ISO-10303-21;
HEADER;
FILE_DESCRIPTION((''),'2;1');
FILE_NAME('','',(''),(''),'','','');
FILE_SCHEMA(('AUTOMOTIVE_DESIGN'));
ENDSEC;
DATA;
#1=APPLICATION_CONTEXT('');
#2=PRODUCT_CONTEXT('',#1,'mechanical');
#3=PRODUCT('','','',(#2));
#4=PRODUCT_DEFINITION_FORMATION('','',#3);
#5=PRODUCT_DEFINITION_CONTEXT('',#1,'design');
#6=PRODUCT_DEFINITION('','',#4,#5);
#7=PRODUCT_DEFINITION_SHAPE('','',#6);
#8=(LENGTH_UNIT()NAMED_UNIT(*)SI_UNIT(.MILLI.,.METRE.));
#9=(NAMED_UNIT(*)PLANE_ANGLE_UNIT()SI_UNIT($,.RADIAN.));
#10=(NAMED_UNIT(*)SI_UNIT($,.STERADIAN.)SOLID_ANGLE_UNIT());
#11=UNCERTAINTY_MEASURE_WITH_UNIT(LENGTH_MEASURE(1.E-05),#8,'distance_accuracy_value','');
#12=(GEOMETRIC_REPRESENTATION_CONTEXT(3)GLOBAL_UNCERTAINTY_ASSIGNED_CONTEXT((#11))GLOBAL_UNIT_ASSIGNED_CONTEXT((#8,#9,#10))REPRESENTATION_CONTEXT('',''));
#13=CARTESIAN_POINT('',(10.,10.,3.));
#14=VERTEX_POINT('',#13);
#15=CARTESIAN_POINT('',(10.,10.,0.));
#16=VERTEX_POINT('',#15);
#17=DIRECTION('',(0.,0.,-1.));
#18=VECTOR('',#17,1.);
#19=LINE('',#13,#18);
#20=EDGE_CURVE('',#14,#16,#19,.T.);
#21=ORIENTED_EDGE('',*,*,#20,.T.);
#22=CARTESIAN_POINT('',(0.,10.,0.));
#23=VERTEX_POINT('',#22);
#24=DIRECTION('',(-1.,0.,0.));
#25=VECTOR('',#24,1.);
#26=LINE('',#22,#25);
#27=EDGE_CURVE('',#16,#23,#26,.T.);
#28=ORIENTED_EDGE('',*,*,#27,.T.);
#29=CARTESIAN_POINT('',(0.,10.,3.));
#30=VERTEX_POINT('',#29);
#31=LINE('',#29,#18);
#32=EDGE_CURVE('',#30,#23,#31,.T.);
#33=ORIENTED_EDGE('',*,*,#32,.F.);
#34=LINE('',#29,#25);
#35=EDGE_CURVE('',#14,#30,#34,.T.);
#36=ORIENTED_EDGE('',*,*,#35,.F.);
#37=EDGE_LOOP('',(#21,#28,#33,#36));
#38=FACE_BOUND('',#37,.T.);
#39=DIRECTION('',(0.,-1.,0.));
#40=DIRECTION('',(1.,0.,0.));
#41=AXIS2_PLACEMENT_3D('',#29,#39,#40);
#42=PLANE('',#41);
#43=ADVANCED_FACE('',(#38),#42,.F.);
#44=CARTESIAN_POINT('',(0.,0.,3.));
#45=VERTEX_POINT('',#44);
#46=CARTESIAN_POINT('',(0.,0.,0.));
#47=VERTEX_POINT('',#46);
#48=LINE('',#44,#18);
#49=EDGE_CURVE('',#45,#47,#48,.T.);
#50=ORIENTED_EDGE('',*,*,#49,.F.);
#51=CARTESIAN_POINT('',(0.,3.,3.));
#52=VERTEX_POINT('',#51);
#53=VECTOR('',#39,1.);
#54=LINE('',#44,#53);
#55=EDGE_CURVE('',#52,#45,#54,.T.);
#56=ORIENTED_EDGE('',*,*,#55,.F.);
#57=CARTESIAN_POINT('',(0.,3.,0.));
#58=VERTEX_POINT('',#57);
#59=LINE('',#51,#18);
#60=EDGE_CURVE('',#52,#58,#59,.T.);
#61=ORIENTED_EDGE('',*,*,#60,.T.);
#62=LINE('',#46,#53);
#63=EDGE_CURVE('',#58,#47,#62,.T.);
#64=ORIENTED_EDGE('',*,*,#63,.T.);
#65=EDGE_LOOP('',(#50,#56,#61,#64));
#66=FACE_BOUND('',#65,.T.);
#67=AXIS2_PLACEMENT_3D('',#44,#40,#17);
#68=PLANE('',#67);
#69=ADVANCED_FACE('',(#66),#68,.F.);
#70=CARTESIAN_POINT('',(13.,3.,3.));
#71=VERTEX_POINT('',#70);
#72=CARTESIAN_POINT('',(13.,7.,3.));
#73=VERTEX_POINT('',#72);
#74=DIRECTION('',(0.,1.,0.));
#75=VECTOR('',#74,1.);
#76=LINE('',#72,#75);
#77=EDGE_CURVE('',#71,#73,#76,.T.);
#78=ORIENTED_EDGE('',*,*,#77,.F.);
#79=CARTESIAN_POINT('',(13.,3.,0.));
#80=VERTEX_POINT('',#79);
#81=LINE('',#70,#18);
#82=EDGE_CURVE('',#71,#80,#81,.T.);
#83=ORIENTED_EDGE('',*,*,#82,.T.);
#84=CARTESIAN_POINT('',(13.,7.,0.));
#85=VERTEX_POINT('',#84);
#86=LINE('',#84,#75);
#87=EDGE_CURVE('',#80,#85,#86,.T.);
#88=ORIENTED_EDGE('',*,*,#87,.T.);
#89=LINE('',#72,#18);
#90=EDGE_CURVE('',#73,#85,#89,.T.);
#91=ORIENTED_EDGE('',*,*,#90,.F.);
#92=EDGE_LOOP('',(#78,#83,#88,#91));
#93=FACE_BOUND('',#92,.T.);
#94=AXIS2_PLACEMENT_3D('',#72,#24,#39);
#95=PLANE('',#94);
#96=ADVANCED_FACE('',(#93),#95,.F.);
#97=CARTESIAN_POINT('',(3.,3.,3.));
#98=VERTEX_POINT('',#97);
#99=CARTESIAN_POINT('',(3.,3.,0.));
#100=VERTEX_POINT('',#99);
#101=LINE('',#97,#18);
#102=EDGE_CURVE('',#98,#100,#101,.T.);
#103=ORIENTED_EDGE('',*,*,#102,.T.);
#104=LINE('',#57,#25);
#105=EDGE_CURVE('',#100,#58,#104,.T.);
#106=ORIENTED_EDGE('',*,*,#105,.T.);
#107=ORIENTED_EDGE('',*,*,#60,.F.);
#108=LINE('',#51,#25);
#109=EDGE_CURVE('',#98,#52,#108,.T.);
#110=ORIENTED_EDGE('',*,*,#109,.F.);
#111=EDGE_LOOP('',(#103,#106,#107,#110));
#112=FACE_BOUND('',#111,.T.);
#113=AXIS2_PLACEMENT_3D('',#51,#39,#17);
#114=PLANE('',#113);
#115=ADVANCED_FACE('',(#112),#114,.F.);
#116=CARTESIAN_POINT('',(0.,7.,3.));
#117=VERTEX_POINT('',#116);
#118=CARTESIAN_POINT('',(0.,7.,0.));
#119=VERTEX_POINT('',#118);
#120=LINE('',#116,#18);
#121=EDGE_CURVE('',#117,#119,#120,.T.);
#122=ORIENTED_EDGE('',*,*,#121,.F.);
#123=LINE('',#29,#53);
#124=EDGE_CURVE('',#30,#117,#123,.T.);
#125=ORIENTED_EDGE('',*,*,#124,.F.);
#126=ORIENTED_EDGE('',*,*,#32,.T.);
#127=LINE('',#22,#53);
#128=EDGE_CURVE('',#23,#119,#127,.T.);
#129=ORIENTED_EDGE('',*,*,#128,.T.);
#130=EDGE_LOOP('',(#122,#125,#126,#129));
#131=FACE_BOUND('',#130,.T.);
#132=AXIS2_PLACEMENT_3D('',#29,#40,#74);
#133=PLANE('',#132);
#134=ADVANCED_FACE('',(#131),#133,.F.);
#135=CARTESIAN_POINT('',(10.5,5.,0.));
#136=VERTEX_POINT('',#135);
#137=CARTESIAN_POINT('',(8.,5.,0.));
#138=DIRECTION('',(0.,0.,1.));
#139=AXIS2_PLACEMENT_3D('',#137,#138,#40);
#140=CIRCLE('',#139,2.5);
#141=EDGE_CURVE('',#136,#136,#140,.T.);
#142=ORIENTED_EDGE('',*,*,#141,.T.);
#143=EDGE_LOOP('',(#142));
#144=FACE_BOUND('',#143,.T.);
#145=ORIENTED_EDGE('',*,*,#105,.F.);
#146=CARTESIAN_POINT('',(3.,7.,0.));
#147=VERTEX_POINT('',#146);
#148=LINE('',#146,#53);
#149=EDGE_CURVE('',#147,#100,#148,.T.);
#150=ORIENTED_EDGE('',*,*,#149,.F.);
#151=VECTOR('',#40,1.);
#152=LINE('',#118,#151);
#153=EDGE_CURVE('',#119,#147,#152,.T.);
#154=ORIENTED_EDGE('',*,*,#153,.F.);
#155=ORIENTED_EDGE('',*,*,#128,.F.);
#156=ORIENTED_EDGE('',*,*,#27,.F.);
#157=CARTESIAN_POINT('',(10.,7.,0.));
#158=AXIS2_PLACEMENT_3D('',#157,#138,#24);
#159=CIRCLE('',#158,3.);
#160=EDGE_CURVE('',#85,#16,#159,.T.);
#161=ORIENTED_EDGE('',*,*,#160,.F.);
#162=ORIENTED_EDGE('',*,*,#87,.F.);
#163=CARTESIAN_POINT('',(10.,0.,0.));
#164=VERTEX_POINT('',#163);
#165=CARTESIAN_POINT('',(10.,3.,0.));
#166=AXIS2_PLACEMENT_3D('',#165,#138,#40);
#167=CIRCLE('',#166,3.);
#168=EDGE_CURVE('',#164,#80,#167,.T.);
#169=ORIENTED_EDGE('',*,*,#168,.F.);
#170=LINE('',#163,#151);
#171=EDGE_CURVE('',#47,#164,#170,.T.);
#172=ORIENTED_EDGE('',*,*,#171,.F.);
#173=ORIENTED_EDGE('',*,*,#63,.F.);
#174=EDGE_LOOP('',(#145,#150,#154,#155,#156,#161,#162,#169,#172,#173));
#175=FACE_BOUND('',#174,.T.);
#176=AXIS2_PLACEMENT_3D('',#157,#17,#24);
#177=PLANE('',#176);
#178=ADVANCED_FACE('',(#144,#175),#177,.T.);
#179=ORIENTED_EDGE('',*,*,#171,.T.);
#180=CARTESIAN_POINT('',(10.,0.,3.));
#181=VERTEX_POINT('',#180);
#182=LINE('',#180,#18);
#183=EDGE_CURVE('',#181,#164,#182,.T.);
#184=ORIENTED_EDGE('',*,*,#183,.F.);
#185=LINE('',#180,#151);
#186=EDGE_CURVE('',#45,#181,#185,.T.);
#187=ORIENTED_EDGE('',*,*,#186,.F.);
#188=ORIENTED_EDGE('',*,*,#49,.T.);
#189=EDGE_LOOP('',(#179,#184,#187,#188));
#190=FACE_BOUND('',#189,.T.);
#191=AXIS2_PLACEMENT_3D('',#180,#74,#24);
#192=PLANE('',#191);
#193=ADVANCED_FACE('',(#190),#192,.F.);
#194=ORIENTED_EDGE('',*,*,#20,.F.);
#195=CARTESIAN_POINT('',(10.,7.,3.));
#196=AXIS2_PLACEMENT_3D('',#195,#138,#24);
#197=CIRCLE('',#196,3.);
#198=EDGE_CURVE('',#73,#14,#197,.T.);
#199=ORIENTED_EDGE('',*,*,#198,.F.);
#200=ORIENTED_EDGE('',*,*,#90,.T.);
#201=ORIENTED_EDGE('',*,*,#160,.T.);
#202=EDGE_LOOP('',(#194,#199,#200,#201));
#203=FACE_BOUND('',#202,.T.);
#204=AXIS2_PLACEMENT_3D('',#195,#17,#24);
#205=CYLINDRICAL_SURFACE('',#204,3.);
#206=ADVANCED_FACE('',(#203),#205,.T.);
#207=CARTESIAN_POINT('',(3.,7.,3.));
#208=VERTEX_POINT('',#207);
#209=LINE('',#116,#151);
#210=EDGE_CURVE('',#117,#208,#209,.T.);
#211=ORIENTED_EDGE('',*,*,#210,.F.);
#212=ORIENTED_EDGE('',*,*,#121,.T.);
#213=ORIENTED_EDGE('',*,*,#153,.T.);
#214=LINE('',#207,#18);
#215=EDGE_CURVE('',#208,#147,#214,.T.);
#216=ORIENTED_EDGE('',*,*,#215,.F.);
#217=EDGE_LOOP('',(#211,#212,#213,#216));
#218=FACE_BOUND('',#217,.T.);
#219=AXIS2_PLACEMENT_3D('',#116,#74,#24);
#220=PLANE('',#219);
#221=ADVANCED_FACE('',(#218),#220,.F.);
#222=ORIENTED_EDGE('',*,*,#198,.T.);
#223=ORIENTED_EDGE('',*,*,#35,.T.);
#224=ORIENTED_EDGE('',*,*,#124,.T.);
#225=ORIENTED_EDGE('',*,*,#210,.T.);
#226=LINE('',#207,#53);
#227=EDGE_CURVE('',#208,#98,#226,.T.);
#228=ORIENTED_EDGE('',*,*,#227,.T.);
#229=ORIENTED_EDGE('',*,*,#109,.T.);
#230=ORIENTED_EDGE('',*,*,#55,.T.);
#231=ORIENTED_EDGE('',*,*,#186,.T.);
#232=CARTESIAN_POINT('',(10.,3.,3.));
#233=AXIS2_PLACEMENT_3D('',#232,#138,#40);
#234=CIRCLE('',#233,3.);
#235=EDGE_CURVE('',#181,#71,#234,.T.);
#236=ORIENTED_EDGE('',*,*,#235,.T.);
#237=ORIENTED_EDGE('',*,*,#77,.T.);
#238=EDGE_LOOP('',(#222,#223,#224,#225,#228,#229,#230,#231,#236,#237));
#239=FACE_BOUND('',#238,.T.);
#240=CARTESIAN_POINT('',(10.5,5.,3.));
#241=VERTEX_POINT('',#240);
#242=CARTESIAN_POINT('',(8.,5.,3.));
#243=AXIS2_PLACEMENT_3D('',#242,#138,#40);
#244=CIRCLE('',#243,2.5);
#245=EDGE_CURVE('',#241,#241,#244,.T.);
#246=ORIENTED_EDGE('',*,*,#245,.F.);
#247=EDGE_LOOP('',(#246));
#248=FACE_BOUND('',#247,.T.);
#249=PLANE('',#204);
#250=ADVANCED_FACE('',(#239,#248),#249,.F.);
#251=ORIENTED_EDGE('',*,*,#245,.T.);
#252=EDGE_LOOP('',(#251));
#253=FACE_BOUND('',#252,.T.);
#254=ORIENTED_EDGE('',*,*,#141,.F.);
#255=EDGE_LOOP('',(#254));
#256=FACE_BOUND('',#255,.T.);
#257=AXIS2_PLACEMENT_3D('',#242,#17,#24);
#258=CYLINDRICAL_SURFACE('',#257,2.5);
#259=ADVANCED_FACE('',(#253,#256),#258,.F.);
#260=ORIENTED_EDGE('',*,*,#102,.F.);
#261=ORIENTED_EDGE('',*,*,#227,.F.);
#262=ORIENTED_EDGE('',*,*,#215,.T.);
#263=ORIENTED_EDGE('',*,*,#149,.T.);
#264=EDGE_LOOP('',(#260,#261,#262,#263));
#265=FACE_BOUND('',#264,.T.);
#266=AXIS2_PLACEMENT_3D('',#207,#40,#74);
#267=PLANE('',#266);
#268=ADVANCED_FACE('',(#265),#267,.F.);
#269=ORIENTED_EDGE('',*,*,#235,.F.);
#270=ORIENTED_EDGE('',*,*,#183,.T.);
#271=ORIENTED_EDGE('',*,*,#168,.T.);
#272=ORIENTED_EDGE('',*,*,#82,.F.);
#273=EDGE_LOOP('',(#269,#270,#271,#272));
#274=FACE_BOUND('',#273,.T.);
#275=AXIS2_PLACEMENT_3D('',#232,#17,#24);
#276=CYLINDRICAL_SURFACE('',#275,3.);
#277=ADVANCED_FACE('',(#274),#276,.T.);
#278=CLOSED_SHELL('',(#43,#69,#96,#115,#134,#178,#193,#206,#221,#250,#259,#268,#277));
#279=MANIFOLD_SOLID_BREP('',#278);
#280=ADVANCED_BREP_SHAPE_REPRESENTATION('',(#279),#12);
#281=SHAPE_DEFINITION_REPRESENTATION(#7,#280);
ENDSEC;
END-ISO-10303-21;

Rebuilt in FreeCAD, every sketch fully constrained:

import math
import FreeCAD as App
import Part
import Sketcher
from FreeCAD import Vector
Q = App.Units.Quantity

doc = App.newDocument("Part")
body = doc.addObject("PartDesign::Body", "Body")

# Sketch on XY plane
sketch1 = body.newObject("Sketcher::SketchObject", "Sketch")
sketch1.AttachmentSupport = (doc.getObject("XY_Plane"), [""])
sketch1.MapMode = "FlatFace"
sketch1.addGeometry([
    Part.LineSegment(Vector(10, 10, 0), Vector(0, 10, 0)),  # 0
    Part.LineSegment(Vector(0, 10, 0), Vector(0, 7, 0)),  # 1
    Part.LineSegment(Vector(0, 7, 0), Vector(3, 7, 0)),  # 2
    Part.LineSegment(Vector(3, 7, 0), Vector(3, 3, 0)),  # 3
    Part.LineSegment(Vector(3, 3, 0), Vector(0, 3, 0)),  # 4
    Part.LineSegment(Vector(0, 3, 0), Vector(0, 0, 0)),  # 5
    Part.LineSegment(Vector(0, 0, 0), Vector(10, 0, 0)),  # 6
    Part.ArcOfCircle(Part.Circle(Vector(10, 3, 0), Vector(0, 0, 1), 3), math.radians(-90), math.radians(0)),  # 7
    Part.LineSegment(Vector(13, 3, 0), Vector(13, 7, 0)),  # 8
    Part.ArcOfCircle(Part.Circle(Vector(10, 7, 0), Vector(0, 0, 1), 3), math.radians(0), math.radians(90)),  # 9
    Part.Circle(Vector(8, 5, 0), Vector(0, 0, 1), 2.5),  # 10
], False)
sketch1.addConstraint([
    Sketcher.Constraint("Coincident", 0, 2, 1, 1),
    Sketcher.Constraint("Coincident", 1, 2, 2, 1),
    Sketcher.Constraint("Coincident", 2, 2, 3, 1),
    Sketcher.Constraint("Coincident", 3, 2, 4, 1),
    Sketcher.Constraint("Coincident", 4, 2, 5, 1),
    Sketcher.Constraint("Coincident", 5, 2, 6, 1),
    Sketcher.Constraint("Tangent", 6, 2, 7, 1),
    Sketcher.Constraint("Tangent", 7, 2, 8, 1),
    Sketcher.Constraint("Tangent", 8, 2, 9, 1),
    Sketcher.Constraint("Tangent", 9, 2, 0, 1),
    Sketcher.Constraint("Horizontal", 0),
    Sketcher.Constraint("Vertical", 1),
    Sketcher.Constraint("Horizontal", 2),
    Sketcher.Constraint("Vertical", 3),
    Sketcher.Constraint("Horizontal", 4),
    Sketcher.Constraint("Vertical", 5),
    Sketcher.Constraint("Horizontal", 6),
    Sketcher.Constraint("Vertical", 8),
    Sketcher.Constraint("Coincident", 5, 2, -1, 1),
    Sketcher.Constraint("Equal", 7, 9),
    Sketcher.Constraint("PointOnObject", 0, 2, -2),
    Sketcher.Constraint("Horizontal", 9, 3, 1, 2),
    Sketcher.Constraint("Horizontal", 7, 3, 3, 2),
    Sketcher.Constraint("Equal", 4, 1),
    Sketcher.Constraint("Diameter", 10, Q("5 mm")),
    Sketcher.Constraint("Radius", 7, Q("3 mm")),
    Sketcher.Constraint("DistanceX", 0, 2, 0, 1, Q("10 mm")),
    Sketcher.Constraint("DistanceY", 3, 2, 3, 1, Q("4 mm")),
    Sketcher.Constraint("DistanceX", -1, 1, 10, 3, Q("8 mm")),
    Sketcher.Constraint("DistanceY", -1, 1, 10, 3, Q("5 mm")),
])
pad1 = body.newObject("PartDesign::Pad", "Pad")
pad1.Profile = sketch1
pad1.Length = 3

doc.recompute()
